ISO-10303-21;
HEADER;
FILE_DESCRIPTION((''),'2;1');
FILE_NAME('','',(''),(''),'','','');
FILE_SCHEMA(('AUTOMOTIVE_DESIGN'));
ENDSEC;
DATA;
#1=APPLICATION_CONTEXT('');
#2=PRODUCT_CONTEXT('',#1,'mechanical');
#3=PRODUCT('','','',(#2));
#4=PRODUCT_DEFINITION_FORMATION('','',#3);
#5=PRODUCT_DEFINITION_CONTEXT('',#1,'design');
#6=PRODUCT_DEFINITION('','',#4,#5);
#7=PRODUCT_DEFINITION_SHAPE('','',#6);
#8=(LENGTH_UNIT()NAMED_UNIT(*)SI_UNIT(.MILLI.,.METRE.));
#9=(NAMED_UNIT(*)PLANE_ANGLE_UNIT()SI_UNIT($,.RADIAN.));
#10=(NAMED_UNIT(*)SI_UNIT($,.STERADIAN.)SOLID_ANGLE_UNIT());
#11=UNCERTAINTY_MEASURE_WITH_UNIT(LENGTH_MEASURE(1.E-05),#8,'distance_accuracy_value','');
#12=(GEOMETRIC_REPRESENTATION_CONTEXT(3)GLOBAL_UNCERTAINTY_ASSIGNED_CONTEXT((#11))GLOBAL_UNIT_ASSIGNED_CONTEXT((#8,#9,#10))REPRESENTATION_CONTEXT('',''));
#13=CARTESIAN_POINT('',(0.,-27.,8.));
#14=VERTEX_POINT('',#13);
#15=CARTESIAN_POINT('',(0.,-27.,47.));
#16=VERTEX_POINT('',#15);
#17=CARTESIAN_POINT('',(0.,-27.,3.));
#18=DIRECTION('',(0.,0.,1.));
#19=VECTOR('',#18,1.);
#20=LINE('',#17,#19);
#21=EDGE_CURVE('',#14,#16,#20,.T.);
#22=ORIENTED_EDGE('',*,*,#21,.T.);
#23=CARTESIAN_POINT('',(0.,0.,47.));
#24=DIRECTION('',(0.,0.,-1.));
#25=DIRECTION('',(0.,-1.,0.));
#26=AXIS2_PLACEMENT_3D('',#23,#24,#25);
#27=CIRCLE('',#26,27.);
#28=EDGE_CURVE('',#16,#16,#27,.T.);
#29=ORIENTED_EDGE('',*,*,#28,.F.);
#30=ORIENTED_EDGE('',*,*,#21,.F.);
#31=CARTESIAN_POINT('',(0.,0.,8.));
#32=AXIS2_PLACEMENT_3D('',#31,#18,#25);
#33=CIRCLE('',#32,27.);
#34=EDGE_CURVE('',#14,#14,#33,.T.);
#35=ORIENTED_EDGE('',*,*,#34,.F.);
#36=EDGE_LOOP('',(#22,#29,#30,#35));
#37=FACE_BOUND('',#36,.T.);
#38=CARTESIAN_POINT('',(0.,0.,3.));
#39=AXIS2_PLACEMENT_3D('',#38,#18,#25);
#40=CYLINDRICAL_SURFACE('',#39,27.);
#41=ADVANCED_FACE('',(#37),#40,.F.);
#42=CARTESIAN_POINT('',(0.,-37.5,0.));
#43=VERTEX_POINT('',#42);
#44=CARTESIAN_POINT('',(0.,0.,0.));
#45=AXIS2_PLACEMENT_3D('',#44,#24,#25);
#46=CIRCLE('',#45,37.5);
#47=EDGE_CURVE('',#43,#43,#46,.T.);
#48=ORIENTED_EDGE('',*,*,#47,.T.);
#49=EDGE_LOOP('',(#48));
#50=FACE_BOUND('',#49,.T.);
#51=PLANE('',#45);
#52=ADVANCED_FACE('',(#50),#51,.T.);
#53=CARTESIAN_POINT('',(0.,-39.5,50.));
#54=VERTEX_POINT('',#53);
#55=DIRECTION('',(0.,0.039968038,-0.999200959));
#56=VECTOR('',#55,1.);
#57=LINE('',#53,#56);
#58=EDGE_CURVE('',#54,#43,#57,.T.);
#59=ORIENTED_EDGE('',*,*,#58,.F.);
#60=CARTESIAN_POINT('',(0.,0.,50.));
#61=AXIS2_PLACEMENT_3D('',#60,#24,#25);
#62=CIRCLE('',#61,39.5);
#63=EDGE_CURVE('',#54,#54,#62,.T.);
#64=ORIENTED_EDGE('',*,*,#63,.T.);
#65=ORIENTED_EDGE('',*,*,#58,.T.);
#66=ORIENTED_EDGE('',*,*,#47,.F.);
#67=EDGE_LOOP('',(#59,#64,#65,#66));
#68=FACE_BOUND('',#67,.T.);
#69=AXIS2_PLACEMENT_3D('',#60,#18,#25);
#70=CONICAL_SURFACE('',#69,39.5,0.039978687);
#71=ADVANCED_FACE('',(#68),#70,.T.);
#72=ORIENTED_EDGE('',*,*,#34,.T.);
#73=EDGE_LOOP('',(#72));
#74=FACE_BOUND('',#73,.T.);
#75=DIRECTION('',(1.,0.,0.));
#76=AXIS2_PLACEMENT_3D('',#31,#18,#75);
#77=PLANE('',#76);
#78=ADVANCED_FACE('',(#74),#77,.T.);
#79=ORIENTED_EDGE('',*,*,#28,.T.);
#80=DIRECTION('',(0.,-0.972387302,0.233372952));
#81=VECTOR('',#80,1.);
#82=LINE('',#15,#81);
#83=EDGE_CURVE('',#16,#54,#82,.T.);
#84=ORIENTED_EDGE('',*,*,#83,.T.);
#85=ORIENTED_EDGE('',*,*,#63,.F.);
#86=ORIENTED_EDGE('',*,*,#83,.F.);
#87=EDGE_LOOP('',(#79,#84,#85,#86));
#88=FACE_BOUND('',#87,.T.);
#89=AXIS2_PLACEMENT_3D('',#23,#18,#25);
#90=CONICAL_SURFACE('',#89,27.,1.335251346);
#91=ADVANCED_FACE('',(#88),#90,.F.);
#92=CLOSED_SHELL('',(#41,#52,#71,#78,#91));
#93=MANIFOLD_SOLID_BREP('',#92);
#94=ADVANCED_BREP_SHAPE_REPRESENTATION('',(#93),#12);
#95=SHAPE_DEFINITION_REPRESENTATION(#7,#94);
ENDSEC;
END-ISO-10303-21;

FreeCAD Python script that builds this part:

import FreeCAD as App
import Part
import Sketcher


def add_polygon(sketch, points):
    """Adds a closed chain of lines whose ends are joined by coincident constraints."""
    first, n = sketch.GeometryCount, len(points)
    for a, b in zip(points, points[1:] + points[:1]):
        sketch.addGeometry(Part.LineSegment(App.Vector(*a, 0), App.Vector(*b, 0)), False)
    for i in range(n):
        sketch.addConstraint(Sketcher.Constraint("Coincident", first + i, 2, first + (i + 1) % n, 1))

doc = App.newDocument("Part")
params = doc.addObject("Spreadsheet::Sheet", "Params")
for row, (alias, value) in enumerate([
    ("sketch1_width", "27 mm"),
    ("sketch1_height", "3 mm"),
    ("sketch1_height2", "44 mm"),
    ("sketch1_width2", "37.5 mm"),
    ("revolution_angle", "360 deg"),
    ("sketch2_diameter", "54 mm"),
    ("pad1_length", "5 mm"),
], start=1):
    params.set(f"A{row}", alias)
    params.set(f"B{row}", "=" + value)
    params.setAlias(f"B{row}", alias)

body = doc.addObject("PartDesign::Body", "Body")

# Sketch on YZ plane
sketch1 = body.newObject("Sketcher::SketchObject", "Sketch")
sketch1.AttachmentSupport = (doc.getObject("YZ_Plane"), [""])
sketch1.MapMode = "FlatFace"
add_polygon(sketch1, [(-27, 47), (-39.5, 50), (-37.5, 0), (0, 0), (0, 3), (-27, 3)])  # lines 0-5
sketch1.addConstraint(Sketcher.Constraint("Horizontal", 2))
sketch1.addConstraint(Sketcher.Constraint("Vertical", 3))
sketch1.addConstraint(Sketcher.Constraint("Horizontal", 4))
sketch1.addConstraint(Sketcher.Constraint("Vertical", 5))
sketch1.addConstraint(Sketcher.Constraint("Coincident", 2, 2, -1, 1))
sketch1.addConstraint(Sketcher.Constraint("DistanceX", 4, 2, 4, 1, 27.0))
sketch1.addConstraint(Sketcher.Constraint("DistanceY", 3, 1, 3, 2, 3.0))
sketch1.addConstraint(Sketcher.Constraint("DistanceY", 5, 1, 5, 2, 44.0))
sketch1.addConstraint(Sketcher.Constraint("DistanceX", 2, 1, 2, 2, 37.5))
sketch1.addConstraint(Sketcher.Constraint("DistanceY", -1, 1, 0, 2, 50.0))
sketch1.addConstraint(Sketcher.Constraint("DistanceX", 0, 2, 1, 2, 2.0))
sketch1.setExpression("Constraints[11]", "Params.sketch1_width")
sketch1.setExpression("Constraints[12]", "Params.sketch1_height")
sketch1.setExpression("Constraints[13]", "Params.sketch1_height2")
sketch1.setExpression("Constraints[14]", "Params.sketch1_width2")
revolution = body.newObject("PartDesign::Revolution", "Revolution")
revolution.Profile = sketch1
revolution.ReferenceAxis = (sketch1, ["V_Axis"])
revolution.setExpression("Angle", "Params.revolution_angle")

# Sketch on XY plane
sketch2 = body.newObject("Sketcher::SketchObject", "Sketch001")
sketch2.AttachmentSupport = (doc.getObject("XY_Plane"), [""])
sketch2.MapMode = "FlatFace"
sketch2.AttachmentOffset = App.Placement(App.Vector(0, 0, 3), App.Rotation())
sketch2.addGeometry(Part.Circle(App.Vector(0, 0, 0), App.Vector(0, 0, 1), 27), False)
sketch2.addConstraint(Sketcher.Constraint("Coincident", 0, 3, -1, 1))
sketch2.addConstraint(Sketcher.Constraint("Diameter", 0, 54.0))
sketch2.setExpression("Constraints[1]", "Params.sketch2_diameter")
pad1 = body.newObject("PartDesign::Pad", "Pad")
pad1.Profile = sketch2
pad1.setExpression("Length", "Params.pad1_length")

doc.recompute()
